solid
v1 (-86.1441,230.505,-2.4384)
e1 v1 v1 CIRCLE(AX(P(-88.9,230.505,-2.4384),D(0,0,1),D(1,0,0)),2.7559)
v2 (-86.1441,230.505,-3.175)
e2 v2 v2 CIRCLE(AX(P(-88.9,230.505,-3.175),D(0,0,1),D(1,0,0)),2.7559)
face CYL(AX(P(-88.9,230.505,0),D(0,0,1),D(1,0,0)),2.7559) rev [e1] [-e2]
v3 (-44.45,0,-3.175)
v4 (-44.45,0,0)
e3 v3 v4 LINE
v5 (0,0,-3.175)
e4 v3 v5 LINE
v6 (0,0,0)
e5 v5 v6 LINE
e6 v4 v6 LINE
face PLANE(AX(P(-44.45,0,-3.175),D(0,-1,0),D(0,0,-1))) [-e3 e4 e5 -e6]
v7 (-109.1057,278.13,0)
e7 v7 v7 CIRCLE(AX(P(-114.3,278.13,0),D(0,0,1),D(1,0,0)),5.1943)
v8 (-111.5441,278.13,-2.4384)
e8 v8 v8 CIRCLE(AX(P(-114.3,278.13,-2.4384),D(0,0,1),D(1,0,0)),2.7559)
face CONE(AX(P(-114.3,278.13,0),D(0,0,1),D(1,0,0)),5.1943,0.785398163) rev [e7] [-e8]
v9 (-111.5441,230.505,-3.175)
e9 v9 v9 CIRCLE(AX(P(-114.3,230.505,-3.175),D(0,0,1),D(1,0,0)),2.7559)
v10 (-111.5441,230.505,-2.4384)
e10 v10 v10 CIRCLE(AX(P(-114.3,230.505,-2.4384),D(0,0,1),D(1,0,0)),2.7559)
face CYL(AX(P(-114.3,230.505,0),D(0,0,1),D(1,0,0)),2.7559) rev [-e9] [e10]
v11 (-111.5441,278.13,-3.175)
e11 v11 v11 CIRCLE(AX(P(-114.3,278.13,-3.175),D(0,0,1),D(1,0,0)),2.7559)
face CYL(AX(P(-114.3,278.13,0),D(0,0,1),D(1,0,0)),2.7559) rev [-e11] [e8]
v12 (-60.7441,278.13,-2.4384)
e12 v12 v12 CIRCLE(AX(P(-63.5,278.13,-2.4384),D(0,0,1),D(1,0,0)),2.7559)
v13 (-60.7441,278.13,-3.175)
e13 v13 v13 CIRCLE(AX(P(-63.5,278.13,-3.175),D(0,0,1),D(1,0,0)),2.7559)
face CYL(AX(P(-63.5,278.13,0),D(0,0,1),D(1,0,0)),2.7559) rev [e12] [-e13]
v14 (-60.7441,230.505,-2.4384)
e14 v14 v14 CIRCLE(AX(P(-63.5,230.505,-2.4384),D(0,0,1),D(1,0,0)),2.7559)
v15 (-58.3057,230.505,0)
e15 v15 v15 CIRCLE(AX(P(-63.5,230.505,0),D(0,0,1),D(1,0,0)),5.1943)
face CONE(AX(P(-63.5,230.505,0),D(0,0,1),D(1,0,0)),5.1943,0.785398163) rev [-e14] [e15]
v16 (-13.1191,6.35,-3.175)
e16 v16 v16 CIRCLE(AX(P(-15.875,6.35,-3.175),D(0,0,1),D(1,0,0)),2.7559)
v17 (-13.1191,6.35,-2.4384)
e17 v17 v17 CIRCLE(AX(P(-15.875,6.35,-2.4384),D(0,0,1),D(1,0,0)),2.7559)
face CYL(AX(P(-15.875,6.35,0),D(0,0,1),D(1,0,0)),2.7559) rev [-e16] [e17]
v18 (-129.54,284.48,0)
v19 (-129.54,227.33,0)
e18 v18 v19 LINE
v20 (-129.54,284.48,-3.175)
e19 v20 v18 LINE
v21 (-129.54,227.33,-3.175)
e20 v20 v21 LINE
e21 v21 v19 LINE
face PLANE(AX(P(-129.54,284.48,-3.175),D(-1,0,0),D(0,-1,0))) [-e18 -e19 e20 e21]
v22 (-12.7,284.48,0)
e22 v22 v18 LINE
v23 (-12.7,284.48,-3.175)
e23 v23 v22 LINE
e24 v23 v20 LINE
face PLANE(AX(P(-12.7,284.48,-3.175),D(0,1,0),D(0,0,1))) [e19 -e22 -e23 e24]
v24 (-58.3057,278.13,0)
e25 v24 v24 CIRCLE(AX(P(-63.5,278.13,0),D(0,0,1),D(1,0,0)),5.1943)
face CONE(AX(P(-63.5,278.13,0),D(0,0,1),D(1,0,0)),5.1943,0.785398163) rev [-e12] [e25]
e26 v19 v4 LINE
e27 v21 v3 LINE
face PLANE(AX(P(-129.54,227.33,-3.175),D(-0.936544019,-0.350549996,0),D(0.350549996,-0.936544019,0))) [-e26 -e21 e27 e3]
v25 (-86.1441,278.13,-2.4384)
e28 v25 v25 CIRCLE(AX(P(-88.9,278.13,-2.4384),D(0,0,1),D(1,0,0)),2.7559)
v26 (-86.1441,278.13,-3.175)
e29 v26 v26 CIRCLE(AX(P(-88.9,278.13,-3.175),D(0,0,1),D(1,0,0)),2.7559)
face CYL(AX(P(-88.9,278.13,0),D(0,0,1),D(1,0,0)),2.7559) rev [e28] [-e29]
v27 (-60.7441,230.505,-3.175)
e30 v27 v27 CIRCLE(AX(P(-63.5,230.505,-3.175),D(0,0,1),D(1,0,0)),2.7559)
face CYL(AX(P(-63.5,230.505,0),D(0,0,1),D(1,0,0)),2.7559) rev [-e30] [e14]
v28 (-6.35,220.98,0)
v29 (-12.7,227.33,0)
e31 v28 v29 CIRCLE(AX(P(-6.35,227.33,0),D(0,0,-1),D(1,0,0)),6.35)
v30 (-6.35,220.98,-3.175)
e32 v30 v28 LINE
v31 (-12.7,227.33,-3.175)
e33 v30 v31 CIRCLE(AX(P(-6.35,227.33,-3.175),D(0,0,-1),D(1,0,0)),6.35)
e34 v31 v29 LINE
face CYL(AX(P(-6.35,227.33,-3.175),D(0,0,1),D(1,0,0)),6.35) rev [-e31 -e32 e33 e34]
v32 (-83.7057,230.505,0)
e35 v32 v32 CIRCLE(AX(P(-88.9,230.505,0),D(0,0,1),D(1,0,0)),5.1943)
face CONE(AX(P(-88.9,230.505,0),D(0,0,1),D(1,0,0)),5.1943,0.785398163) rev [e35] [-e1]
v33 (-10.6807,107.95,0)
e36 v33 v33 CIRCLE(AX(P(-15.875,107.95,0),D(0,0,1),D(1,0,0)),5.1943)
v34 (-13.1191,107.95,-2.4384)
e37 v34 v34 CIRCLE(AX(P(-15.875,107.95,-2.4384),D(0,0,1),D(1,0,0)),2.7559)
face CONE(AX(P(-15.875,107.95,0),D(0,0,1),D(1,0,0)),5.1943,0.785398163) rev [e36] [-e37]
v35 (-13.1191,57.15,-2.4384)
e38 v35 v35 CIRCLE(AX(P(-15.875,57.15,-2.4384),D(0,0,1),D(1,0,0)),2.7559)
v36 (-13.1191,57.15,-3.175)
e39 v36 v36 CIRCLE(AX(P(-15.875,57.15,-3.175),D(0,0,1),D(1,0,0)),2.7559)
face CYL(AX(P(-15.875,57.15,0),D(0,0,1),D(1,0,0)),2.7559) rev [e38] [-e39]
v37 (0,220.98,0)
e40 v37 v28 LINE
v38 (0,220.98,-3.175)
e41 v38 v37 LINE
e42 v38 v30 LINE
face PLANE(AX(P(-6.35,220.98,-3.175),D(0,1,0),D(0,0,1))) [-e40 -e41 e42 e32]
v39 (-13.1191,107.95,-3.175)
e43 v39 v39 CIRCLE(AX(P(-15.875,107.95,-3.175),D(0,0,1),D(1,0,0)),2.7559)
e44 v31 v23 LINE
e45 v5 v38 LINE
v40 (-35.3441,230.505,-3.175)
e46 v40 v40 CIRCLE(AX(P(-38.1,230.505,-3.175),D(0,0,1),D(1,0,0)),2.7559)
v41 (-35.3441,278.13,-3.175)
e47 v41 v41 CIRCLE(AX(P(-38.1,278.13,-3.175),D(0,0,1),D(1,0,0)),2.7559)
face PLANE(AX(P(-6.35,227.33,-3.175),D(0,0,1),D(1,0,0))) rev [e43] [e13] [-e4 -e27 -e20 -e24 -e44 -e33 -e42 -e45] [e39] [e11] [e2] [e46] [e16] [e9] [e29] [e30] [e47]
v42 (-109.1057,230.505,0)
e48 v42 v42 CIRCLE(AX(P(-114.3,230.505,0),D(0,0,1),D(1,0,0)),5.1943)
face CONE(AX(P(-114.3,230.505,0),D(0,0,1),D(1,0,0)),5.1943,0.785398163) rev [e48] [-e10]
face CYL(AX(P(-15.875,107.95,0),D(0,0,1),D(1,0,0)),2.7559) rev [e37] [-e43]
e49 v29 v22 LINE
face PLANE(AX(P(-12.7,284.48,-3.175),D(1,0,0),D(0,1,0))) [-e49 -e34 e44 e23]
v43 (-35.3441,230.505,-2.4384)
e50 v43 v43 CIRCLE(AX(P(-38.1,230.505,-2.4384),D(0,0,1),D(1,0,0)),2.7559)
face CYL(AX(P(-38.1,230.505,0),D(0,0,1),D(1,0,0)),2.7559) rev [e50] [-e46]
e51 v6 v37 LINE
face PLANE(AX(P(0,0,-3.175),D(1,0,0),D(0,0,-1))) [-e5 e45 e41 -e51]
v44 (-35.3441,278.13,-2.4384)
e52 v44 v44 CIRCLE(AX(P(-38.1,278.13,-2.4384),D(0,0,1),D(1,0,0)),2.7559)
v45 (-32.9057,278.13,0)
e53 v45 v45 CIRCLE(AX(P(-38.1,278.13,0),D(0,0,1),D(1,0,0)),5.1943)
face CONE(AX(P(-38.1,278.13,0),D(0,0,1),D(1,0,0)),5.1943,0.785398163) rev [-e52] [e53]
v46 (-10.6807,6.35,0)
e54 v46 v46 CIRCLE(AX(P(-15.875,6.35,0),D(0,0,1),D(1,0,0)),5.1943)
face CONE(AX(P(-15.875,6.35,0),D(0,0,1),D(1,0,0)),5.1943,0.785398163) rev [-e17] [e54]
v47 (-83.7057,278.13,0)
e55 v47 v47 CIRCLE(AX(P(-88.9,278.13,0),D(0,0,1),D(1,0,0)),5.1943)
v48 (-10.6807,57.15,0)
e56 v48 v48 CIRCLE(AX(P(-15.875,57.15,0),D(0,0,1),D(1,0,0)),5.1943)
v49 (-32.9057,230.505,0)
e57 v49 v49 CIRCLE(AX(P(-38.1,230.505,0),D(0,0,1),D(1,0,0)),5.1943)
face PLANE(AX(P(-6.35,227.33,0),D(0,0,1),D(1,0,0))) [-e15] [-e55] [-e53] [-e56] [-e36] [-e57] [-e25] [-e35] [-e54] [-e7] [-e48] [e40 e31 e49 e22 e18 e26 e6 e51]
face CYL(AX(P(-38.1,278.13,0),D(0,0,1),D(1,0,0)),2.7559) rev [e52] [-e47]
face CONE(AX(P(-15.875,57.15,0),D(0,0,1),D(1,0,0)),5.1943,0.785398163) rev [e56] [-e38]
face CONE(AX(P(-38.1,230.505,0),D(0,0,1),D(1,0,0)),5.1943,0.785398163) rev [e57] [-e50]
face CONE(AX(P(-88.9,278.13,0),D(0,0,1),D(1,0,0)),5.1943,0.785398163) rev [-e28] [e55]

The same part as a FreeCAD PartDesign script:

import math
import FreeCAD as App
import Part
import Sketcher
from FreeCAD import Vector
Q = App.Units.Quantity


def add_polygon(sketch, points):
    """Adds a closed chain of lines whose ends are joined by coincident constraints."""
    first, n = sketch.GeometryCount, len(points)
    for a, b in zip(points, points[1:] + points[:1]):
        sketch.addGeometry(Part.LineSegment(App.Vector(*a, 0), App.Vector(*b, 0)), False)
    for i in range(n):
        sketch.addConstraint(Sketcher.Constraint("Coincident", first + i, 2, first + (i + 1) % n, 1))

doc = App.newDocument("Part")
params = doc.addObject("Spreadsheet::Sheet", "Params")
for row, (alias, value) in enumerate([
    ("sketch1_radius", "0.25 in"),
    ("sketch1_width", "4.6 in"),
    ("sketch1_height", "8.7 in"),
    ("sketch1_width2", "0.25 in"),
    ("sketch1_width3", "1.75 in"),
    ("pad1_length", "0.125 in"),
    ("sketch2_height", "0.125 in"),
    ("sketch2_height2", "0.029 in"),
    ("groove_angle", "360 deg"),
    ("linearpattern_pitch", "1.875 in"),
    ("linearpattern2_pitch", "1 in"),
    ("sketch3_height", "0.125 in"),
    ("sketch3_height2", "0.029 in"),
    ("groove2_angle", "360 deg"),
    ("sketch4_height", "0.125 in"),
    ("sketch4_height2", "0.029 in"),
    ("groove3_angle", "360 deg"),
    ("sketch5_height", "0.125 in"),
    ("sketch5_height2", "0.029 in"),
    ("groove4_angle", "360 deg"),
    ("sketch6_height", "0.125 in"),
    ("sketch6_height2", "0.029 in"),
    ("groove5_angle", "360 deg"),
    ("linearpattern3_pitch", "2 in"),
], start=1):
    params.set(f"A{row}", alias)
    params.set(f"B{row}", "=" + value)
    params.setAlias(f"B{row}", alias)

body = doc.addObject("PartDesign::Body", "Body")

# Sketch on XY plane
sketch1 = doc.addObject("Sketcher::SketchObject", "Sketch")
body.addObject(sketch1)
sketch1.AttachmentSupport = (doc.XY_Plane, [""])
sketch1.MapMode = "FlatFace"
sketch1.addGeometry([
    Part.LineSegment(Vector(0, 0, 0), Vector(0, 221, 0)),  # 0
    Part.LineSegment(Vector(0, 221, 0), Vector(-6, 221, 0)),  # 1
    Part.ArcOfCircle(Part.Circle(Vector(-6, 227, 0), Vector(0, 0, 1), 6), math.radians(180), math.radians(270)),  # 2
    Part.LineSegment(Vector(-13, 227, 0), Vector(-13, 284, 0)),  # 3
    Part.LineSegment(Vector(-13, 284, 0), Vector(-130, 284, 0)),  # 4
    Part.LineSegment(Vector(-130, 284, 0), Vector(-130, 227, 0)),  # 5
    Part.LineSegment(Vector(-130, 227, 0), Vector(-44, 0, 0)),  # 6
    Part.LineSegment(Vector(-44, 0, 0), Vector(0, 0, 0)),  # 7
], False)
sketch1.addConstraint([
    Sketcher.Constraint("Coincident", 0, 2, 1, 1),
    Sketcher.Constraint("Tangent", 1, 2, 2, 2),
    Sketcher.Constraint("Tangent", 2, 1, 3, 1),
    Sketcher.Constraint("Coincident", 3, 2, 4, 1),
    Sketcher.Constraint("Coincident", 4, 2, 5, 1),
    Sketcher.Constraint("Coincident", 5, 2, 6, 1),
    Sketcher.Constraint("Coincident", 6, 2, 7, 1),
    Sketcher.Constraint("Coincident", 7, 2, 0, 1),
    Sketcher.Constraint("Vertical", 0),
    Sketcher.Constraint("Horizontal", 1),
    Sketcher.Constraint("Vertical", 3),
    Sketcher.Constraint("Horizontal", 4),
    Sketcher.Constraint("Vertical", 5),
    Sketcher.Constraint("Horizontal", 7),
    Sketcher.Constraint("Coincident", 7, 2, -1, 1),
    Sketcher.Constraint("Horizontal", 2, 1, 5, 2),
    Sketcher.Constraint("Radius", 2, Q("0.25 in")),
    Sketcher.Constraint("DistanceX", 4, 2, 4, 1, Q("4.6 in")),
    Sketcher.Constraint("DistanceY", 0, 1, 0, 2, Q("8.7 in")),
    Sketcher.Constraint("DistanceX", 1, 2, 1, 1, Q("0.25 in")),
    Sketcher.Constraint("DistanceX", 7, 1, 7, 2, Q("1.75 in")),
    Sketcher.Constraint("DistanceY", 3, 1, 3, 2, Q("2.25 in")),
])
sketch1.setExpression("Constraints[16]", "Params.sketch1_radius")
sketch1.setExpression("Constraints[17]", "Params.sketch1_width")
sketch1.setExpression("Constraints[18]", "Params.sketch1_height")
sketch1.setExpression("Constraints[19]", "Params.sketch1_width2")
sketch1.setExpression("Constraints[20]", "Params.sketch1_width3")
pad1 = doc.addObject("PartDesign::Pad", "Pad")
body.addObject(pad1)
pad1.Profile = sketch1
pad1.setExpression("Length", "Params.pad1_length")
pad1.Reversed = True

# Sketch on YZ plane
sketch2 = doc.addObject("Sketcher::SketchObject", "Sketch001")
body.addObject(sketch2)
sketch2.AttachmentSupport = (doc.YZ_Plane, [""])
sketch2.MapMode = "FlatFace"
sketch2.AttachmentOffset = App.Placement(Vector(0, 0, -4.5 * 25.4), App.Rotation())
add_polygon(sketch2, [(278.1, -3.2), (278.1, 0), (272.9, 0), (275.4, -2.4), (275.4, -3.2)])  # lines 0-4
sketch2.addGeometry(Part.LineSegment(Vector(278.1, 0, 0), Vector(278.1, -3.2, 0)), True)  # axis
sketch2.addConstraint([
    Sketcher.Constraint("Vertical", 0),
    Sketcher.Constraint("Horizontal", 1),
    Sketcher.Constraint("Vertical", 3),
    Sketcher.Constraint("Horizontal", 4),
    Sketcher.Constraint("Vertical", 5),
    Sketcher.Constraint("Coincident", 5, 1, 0, 2),
    Sketcher.Constraint("PointOnObject", 0, 2, -1),
    Sketcher.Constraint("Horizontal", 3, 2, 5, 2),
    Sketcher.Constraint("Angle", 2, Q("-45 deg")),
    Sketcher.Constraint("DistanceY", 0, 1, 0, 2, Q("0.125 in")),
    Sketcher.Constraint("DistanceY", 3, 2, 3, 1, Q("0.029 in")),
    Sketcher.Constraint("DistanceX", -1, 1, 0, 2, Q("10.95 in")),
    Sketcher.Constraint("DistanceX", 1, 2, 1, 1, Q("0.2045 in")),
])
sketch2.setExpression("Constraints[14]", "Params.sketch2_height")
sketch2.setExpression("Constraints[15]", "Params.sketch2_height2")
groove = doc.addObject("PartDesign::Groove", "Groove")
body.addObject(groove)
groove.Profile = sketch2
groove.ReferenceAxis = (sketch2, ["Axis0"])
groove.setExpression("Angle", "Params.groove_angle")
doc.recompute()

linearpattern = doc.addObject("PartDesign::LinearPattern", "LinearPattern")
body.addObject(linearpattern)
linearpattern.Originals = [groove]
linearpattern.Direction = (doc.Y_Axis, [""])
linearpattern.Mode = "offset"
linearpattern.setExpression("Offset", "Params.linearpattern_pitch")
linearpattern.Occurrences = 2
linearpattern.Reversed = True
body.Tip = linearpattern
doc.recompute()

linearpattern2 = doc.addObject("PartDesign::LinearPattern", "LinearPattern001")
body.addObject(linearpattern2)
linearpattern2.Originals = [groove]
linearpattern2.Direction = (doc.X_Axis, [""])
linearpattern2.Mode = "offset"
linearpattern2.setExpression("Offset", "Params.linearpattern2_pitch")
linearpattern2.Occurrences = 4
body.Tip = linearpattern2

# Sketch on YZ plane
sketch3 = doc.addObject("Sketcher::SketchObject", "Sketch002")
body.addObject(sketch3)
sketch3.AttachmentSupport = (doc.YZ_Plane, [""])
sketch3.MapMode = "FlatFace"
sketch3.AttachmentOffset = App.Placement(Vector(0, 0, -3.5 * 25.4), App.Rotation())
add_polygon(sketch3, [(230.5, -3.2), (230.5, 0), (225.3, 0), (227.7, -2.4), (227.7, -3.2)])  # lines 0-4
sketch3.addGeometry(Part.LineSegment(Vector(230.5, 0, 0), Vector(230.5, -3.2, 0)), True)  # axis
sketch3.addConstraint([
    Sketcher.Constraint("Vertical", 0),
    Sketcher.Constraint("Horizontal", 1),
    Sketcher.Constraint("Vertical", 3),
    Sketcher.Constraint("Horizontal", 4),
    Sketcher.Constraint("Vertical", 5),
    Sketcher.Constraint("Coincident", 5, 1, 0, 2),
    Sketcher.Constraint("PointOnObject", 0, 2, -1),
    Sketcher.Constraint("Horizontal", 3, 2, 5, 2),
    Sketcher.Constraint("Angle", 2, Q("-45 deg")),
    Sketcher.Constraint("DistanceY", 0, 1, 0, 2, Q("0.125 in")),
    Sketcher.Constraint("DistanceY", 3, 2, 3, 1, Q("0.029 in")),
    Sketcher.Constraint("DistanceX", 1, 2, 1, 1, Q("0.2045 in")),
    Sketcher.Constraint("DistanceX", -1, 1, 0, 2, Q("9.075 in")),
])
sketch3.setExpression("Constraints[14]", "Params.sketch3_height")
sketch3.setExpression("Constraints[15]", "Params.sketch3_height2")
groove2 = doc.addObject("PartDesign::Groove", "Groove001")
body.addObject(groove2)
groove2.Profile = sketch3
groove2.ReferenceAxis = (sketch3, ["Axis0"])
groove2.setExpression("Angle", "Params.groove2_angle")

# Sketch on YZ plane
sketch4 = doc.addObject("Sketcher::SketchObject", "Sketch003")
body.addObject(sketch4)
sketch4.AttachmentSupport = (doc.YZ_Plane, [""])
sketch4.MapMode = "FlatFace"
sketch4.AttachmentOffset = App.Placement(Vector(0, 0, -2.5 * 25.4), App.Rotation())
add_polygon(sketch4, [(230.5, -3.2), (230.5, 0), (225.3, 0), (227.7, -2.4), (227.7, -3.2)])  # lines 0-4
sketch4.addGeometry(Part.LineSegment(Vector(230.5, 0, 0), Vector(230.5, -3.2, 0)), True)  # axis
sketch4.addConstraint([
    Sketcher.Constraint("Vertical", 0),
    Sketcher.Constraint("Horizontal", 1),
    Sketcher.Constraint("Vertical", 3),
    Sketcher.Constraint("Horizontal", 4),
    Sketcher.Constraint("Vertical", 5),
    Sketcher.Constraint("Coincident", 5, 1, 0, 2),
    Sketcher.Constraint("PointOnObject", 0, 2, -1),
    Sketcher.Constraint("Horizontal", 3, 2, 5, 2),
    Sketcher.Constraint("Angle", 2, Q("-45 deg")),
    Sketcher.Constraint("DistanceY", 0, 1, 0, 2, Q("0.125 in")),
    Sketcher.Constraint("DistanceY", 3, 2, 3, 1, Q("0.029 in")),
    Sketcher.Constraint("DistanceX", 1, 2, 1, 1, Q("0.2045 in")),
    Sketcher.Constraint("DistanceX", -1, 1, 0, 2, Q("9.075 in")),
])
sketch4.setExpression("Constraints[14]", "Params.sketch4_height")
sketch4.setExpression("Constraints[15]", "Params.sketch4_height2")
groove3 = doc.addObject("PartDesign::Groove", "Groove002")
body.addObject(groove3)
groove3.Profile = sketch4
groove3.ReferenceAxis = (sketch4, ["Axis0"])
groove3.setExpression("Angle", "Params.groove3_angle")

# Sketch on YZ plane
sketch5 = doc.addObject("Sketcher::SketchObject", "Sketch004")
body.addObject(sketch5)
sketch5.AttachmentSupport = (doc.YZ_Plane, [""])
sketch5.MapMode = "FlatFace"
sketch5.AttachmentOffset = App.Placement(Vector(0, 0, -1.5 * 25.4), App.Rotation())
add_polygon(sketch5, [(230.5, -3.2), (230.5, 0), (225.3, 0), (227.7, -2.4), (227.7, -3.2)])  # lines 0-4
sketch5.addGeometry(Part.LineSegment(Vector(230.5, 0, 0), Vector(230.5, -3.2, 0)), True)  # axis
sketch5.addConstraint([
    Sketcher.Constraint("Vertical", 0),
    Sketcher.Constraint("Horizontal", 1),
    Sketcher.Constraint("Vertical", 3),
    Sketcher.Constraint("Horizontal", 4),
    Sketcher.Constraint("Vertical", 5),
    Sketcher.Constraint("Coincident", 5, 1, 0, 2),
    Sketcher.Constraint("PointOnObject", 0, 2, -1),
    Sketcher.Constraint("Horizontal", 3, 2, 5, 2),
    Sketcher.Constraint("Angle", 2, Q("-45 deg")),
    Sketcher.Constraint("DistanceY", 0, 1, 0, 2, Q("0.125 in")),
    Sketcher.Constraint("DistanceY", 3, 2, 3, 1, Q("0.029 in")),
    Sketcher.Constraint("DistanceX", 1, 2, 1, 1, Q("0.2045 in")),
    Sketcher.Constraint("DistanceX", -1, 1, 0, 2, Q("9.075 in")),
])
sketch5.setExpression("Constraints[14]", "Params.sketch5_height")
sketch5.setExpression("Constraints[15]", "Params.sketch5_height2")
groove4 = doc.addObject("PartDesign::Groove", "Groove003")
body.addObject(groove4)
groove4.Profile = sketch5
groove4.ReferenceAxis = (sketch5, ["Axis0"])
groove4.setExpression("Angle", "Params.groove4_angle")

# Sketch on YZ plane
sketch6 = doc.addObject("Sketcher::SketchObject", "Sketch005")
body.addObject(sketch6)
sketch6.AttachmentSupport = (doc.YZ_Plane, [""])
sketch6.MapMode = "FlatFace"
sketch6.AttachmentOffset = App.Placement(Vector(0, 0, -0.625 * 25.4), App.Rotation())
add_polygon(sketch6, [(108, -3.2), (108, 0), (102.8, 0), (105.2, -2.4), (105.2, -3.2)])  # lines 0-4
sketch6.addGeometry(Part.LineSegment(Vector(108, 0, 0), Vector(108, -3.2, 0)), True)  # axis
sketch6.addConstraint([
    Sketcher.Constraint("Vertical", 0),
    Sketcher.Constraint("Horizontal", 1),
    Sketcher.Constraint("Vertical", 3),
    Sketcher.Constraint("Horizontal", 4),
    Sketcher.Constraint("Vertical", 5),
    Sketcher.Constraint("Coincident", 5, 1, 0, 2),
    Sketcher.Constraint("PointOnObject", 0, 2, -1),
    Sketcher.Constraint("Horizontal", 3, 2, 5, 2),
    Sketcher.Constraint("Angle", 2, Q("-45 deg")),
    Sketcher.Constraint("DistanceY", 0, 1, 0, 2, Q("0.125 in")),
    Sketcher.Constraint("DistanceY", 3, 2, 3, 1, Q("0.029 in")),
    Sketcher.Constraint("DistanceX", -1, 1, 0, 2, Q("4.25 in")),
    Sketcher.Constraint("DistanceX", 1, 2, 1, 1, Q("0.2045 in")),
])
sketch6.setExpression("Constraints[14]", "Params.sketch6_height")
sketch6.setExpression("Constraints[15]", "Params.sketch6_height2")
groove5 = doc.addObject("PartDesign::Groove", "Groove004")
body.addObject(groove5)
groove5.Profile = sketch6
groove5.ReferenceAxis = (sketch6, ["Axis0"])
groove5.setExpression("Angle", "Params.groove5_angle")
doc.recompute()

linearpattern3 = doc.addObject("PartDesign::LinearPattern", "LinearPattern002")
body.addObject(linearpattern3)
linearpattern3.Originals = [groove5]
linearpattern3.Direction = (doc.Y_Axis, [""])
linearpattern3.Mode = "offset"
linearpattern3.setExpression("Offset", "Params.linearpattern3_pitch")
linearpattern3.Occurrences = 3
linearpattern3.Reversed = True
body.Tip = linearpattern3

doc.recompute()
